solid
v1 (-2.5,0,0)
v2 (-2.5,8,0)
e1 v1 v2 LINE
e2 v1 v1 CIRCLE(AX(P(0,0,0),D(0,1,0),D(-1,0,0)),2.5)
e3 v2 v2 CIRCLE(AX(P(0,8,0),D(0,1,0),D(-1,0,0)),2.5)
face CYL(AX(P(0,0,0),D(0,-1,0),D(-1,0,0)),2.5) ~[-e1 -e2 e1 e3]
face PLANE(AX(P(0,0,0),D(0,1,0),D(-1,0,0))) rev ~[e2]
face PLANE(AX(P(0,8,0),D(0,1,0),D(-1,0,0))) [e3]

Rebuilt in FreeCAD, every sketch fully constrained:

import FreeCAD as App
import Part
import Sketcher
Q = App.Units.Quantity

doc = App.newDocument("Part")
body = doc.addObject("PartDesign::Body", "Body")

sketch1 = doc.addObject("Sketcher::SketchObject", "Sketch")
body.addObject(sketch1)
sketch1.AttachmentSupport = (doc.XZ_Plane, [""])
sketch1.MapMode = "FlatFace"
sketch1.addGeometry(Part.Circle(App.Vector(0, 0, 0), App.Vector(0, 0, 1), 2.5), False)
sketch1.addConstraint([
    Sketcher.Constraint("Coincident", 0, 3, -1, 1),
    Sketcher.Constraint("Diameter", 0, Q("5 mm")),
])
pad1 = doc.addObject("PartDesign::Pad", "Pad")
body.addObject(pad1)
pad1.Profile = sketch1
pad1.Length = 8
pad1.Reversed = True

doc.recompute()
